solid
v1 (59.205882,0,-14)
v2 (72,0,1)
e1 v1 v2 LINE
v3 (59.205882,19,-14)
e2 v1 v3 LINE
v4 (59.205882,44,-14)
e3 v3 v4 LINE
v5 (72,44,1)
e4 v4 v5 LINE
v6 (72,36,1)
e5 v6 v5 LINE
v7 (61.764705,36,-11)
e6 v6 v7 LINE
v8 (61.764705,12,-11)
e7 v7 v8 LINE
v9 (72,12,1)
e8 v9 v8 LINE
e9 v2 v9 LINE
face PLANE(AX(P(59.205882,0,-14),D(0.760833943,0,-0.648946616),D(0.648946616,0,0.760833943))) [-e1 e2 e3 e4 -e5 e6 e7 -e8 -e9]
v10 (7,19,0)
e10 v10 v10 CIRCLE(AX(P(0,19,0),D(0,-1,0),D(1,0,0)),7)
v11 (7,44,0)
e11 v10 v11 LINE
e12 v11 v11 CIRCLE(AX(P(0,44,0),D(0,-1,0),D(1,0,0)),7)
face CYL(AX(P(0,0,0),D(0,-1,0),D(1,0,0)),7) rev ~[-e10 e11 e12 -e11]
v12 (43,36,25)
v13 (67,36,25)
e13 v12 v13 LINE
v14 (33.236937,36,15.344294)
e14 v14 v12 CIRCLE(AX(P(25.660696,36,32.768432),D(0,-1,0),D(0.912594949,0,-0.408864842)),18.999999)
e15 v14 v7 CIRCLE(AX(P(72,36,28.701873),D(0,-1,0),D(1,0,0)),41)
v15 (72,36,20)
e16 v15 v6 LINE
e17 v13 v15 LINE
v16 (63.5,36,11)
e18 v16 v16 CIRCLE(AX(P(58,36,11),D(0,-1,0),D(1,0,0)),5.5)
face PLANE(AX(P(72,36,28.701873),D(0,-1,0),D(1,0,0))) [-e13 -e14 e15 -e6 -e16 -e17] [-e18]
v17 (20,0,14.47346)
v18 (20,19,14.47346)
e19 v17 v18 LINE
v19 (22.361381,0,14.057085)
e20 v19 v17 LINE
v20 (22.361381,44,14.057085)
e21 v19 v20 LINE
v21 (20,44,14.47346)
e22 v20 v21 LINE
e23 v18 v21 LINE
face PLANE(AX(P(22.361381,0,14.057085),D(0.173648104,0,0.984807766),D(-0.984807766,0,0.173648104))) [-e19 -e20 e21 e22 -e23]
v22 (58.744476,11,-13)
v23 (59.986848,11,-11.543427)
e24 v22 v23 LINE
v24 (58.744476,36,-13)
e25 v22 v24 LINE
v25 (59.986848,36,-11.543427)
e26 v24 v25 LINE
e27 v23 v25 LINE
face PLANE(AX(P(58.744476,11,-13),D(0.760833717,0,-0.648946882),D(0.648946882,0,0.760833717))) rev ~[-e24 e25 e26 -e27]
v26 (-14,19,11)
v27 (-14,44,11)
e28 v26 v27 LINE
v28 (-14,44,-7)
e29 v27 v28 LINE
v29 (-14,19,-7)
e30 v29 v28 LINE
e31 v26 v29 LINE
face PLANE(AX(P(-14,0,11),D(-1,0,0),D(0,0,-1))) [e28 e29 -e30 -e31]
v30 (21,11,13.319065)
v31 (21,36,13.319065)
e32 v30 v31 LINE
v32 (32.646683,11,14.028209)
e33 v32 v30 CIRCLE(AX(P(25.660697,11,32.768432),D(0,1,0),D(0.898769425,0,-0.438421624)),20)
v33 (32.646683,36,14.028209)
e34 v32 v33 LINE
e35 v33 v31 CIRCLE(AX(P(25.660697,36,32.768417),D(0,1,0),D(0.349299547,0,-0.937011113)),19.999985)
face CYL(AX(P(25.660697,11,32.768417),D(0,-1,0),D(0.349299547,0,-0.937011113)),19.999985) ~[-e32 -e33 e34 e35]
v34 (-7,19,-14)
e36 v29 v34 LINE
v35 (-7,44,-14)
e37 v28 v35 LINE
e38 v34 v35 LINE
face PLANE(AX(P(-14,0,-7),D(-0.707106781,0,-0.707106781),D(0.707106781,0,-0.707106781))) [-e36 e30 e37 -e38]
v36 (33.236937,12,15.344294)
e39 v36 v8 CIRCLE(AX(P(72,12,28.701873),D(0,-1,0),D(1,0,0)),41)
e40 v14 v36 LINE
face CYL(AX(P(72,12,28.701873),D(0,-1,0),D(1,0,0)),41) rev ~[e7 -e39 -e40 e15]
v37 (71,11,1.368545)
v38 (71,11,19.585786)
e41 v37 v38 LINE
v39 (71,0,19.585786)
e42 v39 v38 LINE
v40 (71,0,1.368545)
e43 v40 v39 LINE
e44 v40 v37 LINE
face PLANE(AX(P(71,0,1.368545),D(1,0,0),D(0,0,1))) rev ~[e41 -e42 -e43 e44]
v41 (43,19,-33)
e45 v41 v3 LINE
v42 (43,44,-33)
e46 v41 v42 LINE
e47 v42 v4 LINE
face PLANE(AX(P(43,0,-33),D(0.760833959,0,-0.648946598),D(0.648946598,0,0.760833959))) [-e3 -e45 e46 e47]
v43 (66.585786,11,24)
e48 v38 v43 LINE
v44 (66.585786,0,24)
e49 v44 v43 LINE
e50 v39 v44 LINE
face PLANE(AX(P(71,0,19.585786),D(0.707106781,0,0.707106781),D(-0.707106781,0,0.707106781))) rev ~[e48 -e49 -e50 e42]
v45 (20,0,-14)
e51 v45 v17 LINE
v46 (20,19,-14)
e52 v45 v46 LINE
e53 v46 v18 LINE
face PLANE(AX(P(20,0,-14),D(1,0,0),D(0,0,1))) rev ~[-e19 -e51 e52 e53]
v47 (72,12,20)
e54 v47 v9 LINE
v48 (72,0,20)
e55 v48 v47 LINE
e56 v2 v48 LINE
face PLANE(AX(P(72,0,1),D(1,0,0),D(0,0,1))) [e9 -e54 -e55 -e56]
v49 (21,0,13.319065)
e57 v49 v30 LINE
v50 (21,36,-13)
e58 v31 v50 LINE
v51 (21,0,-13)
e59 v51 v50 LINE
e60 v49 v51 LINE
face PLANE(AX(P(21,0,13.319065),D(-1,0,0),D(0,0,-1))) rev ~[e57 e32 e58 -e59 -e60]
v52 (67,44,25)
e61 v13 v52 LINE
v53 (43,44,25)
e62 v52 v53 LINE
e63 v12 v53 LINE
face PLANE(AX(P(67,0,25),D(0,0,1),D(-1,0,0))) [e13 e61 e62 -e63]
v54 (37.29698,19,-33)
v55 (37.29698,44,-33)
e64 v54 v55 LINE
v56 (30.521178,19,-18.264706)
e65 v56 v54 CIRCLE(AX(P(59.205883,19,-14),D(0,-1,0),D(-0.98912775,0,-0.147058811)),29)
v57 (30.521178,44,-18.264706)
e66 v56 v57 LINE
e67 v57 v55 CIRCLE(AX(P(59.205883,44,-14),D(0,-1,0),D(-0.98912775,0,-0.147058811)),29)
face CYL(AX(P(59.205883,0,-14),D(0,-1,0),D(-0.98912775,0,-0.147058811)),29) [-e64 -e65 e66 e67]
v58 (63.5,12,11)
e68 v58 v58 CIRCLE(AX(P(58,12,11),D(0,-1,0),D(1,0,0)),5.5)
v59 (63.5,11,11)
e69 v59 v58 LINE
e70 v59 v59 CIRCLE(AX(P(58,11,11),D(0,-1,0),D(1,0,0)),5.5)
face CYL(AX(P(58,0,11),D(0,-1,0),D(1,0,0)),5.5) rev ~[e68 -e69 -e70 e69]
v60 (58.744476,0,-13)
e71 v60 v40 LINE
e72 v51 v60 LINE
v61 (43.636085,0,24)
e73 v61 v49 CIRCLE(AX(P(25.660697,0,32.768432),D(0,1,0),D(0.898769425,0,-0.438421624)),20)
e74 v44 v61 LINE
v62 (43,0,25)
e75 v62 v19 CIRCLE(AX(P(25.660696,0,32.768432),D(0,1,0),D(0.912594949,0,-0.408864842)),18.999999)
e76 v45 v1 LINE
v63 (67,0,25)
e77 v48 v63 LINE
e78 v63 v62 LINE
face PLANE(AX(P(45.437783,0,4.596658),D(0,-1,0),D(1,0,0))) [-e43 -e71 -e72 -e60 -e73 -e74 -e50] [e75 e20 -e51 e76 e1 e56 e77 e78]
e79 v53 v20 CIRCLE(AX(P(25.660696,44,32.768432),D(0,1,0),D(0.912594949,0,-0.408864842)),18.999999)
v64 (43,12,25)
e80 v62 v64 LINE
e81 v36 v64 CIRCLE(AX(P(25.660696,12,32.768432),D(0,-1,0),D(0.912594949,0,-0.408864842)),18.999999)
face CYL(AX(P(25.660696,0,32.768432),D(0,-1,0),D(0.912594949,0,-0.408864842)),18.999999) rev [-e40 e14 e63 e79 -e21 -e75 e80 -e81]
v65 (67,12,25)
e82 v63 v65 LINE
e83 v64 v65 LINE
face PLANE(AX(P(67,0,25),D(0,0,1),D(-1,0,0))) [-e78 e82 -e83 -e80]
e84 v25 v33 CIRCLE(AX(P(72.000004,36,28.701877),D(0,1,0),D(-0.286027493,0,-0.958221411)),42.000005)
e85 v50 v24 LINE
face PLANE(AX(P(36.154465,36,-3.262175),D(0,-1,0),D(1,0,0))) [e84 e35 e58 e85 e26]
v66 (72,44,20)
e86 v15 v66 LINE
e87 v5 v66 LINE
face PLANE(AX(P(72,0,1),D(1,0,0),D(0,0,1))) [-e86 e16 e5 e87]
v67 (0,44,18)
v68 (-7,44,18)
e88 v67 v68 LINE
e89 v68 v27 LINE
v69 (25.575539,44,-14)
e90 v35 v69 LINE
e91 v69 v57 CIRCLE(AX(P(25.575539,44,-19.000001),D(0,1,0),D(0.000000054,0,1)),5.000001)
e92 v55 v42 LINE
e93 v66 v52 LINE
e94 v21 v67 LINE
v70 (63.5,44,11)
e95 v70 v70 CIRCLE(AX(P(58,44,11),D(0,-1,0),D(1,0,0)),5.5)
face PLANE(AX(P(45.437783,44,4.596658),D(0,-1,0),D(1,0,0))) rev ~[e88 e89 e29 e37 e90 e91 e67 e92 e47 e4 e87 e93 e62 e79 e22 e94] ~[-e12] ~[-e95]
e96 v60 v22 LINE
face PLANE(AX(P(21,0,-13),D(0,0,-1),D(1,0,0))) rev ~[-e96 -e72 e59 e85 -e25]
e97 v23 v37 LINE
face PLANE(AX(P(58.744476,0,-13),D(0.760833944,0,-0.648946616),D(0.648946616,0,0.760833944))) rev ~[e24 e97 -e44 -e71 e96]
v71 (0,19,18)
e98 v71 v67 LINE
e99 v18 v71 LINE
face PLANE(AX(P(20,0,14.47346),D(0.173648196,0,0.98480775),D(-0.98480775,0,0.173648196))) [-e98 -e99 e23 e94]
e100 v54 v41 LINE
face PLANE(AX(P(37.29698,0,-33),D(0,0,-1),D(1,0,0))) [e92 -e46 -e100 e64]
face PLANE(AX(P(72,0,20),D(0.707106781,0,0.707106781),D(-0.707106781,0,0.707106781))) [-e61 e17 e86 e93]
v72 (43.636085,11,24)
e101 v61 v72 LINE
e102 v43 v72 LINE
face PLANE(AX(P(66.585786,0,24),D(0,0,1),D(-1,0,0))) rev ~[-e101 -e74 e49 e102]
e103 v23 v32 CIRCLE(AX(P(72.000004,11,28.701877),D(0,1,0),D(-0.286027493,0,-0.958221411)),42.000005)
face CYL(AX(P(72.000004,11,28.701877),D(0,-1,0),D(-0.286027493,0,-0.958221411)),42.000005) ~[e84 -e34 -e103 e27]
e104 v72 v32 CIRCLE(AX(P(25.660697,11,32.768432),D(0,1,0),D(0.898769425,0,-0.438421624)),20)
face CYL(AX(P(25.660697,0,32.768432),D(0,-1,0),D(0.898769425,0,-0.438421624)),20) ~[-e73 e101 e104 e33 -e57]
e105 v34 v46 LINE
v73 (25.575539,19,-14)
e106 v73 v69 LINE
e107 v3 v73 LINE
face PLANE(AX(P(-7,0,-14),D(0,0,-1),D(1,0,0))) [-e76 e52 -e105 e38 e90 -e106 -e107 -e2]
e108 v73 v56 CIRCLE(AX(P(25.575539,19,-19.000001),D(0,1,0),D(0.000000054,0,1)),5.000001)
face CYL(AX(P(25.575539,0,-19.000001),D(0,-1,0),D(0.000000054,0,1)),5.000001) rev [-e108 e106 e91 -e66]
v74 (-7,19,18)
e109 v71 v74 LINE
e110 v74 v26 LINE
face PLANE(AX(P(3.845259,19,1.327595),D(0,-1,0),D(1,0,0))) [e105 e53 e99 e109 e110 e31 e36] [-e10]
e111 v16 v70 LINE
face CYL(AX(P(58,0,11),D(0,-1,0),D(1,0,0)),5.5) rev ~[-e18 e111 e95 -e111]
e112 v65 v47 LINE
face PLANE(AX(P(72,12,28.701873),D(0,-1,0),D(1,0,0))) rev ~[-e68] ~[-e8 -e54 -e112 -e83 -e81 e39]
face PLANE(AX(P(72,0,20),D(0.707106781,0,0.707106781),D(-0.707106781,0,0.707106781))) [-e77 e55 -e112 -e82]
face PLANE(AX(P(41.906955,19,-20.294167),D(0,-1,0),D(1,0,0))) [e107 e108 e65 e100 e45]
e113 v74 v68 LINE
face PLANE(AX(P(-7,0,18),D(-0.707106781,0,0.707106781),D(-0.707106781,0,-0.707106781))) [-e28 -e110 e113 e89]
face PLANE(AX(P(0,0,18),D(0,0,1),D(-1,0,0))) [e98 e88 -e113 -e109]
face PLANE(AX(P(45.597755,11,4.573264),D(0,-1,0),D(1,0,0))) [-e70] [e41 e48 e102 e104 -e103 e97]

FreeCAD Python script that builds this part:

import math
import FreeCAD as App
import Part
import Sketcher

V = App.Vector
Q = App.Units.Quantity


def add_polygon(sketch, points):
    """Adds a closed chain of lines whose ends are joined by coincident constraints."""
    first, n = sketch.GeometryCount, len(points)
    for a, b in zip(points, points[1:] + points[:1]):
        sketch.addGeometry(Part.LineSegment(App.Vector(*a, 0), App.Vector(*b, 0)), False)
    for i in range(n):
        sketch.addConstraint(Sketcher.Constraint("Coincident", first + i, 2, first + (i + 1) % n, 1))

doc = App.newDocument("Part")
params = doc.addObject("Spreadsheet::Sheet", "Params")
for row, (alias, value) in enumerate([
    ("sketch1_diameter", "14 mm"),
    ("sketch1_diameter2", "11 mm"),
    ("sketch1_radius", "5.000001 mm"),
    ("sketch1_radius2", "29 mm"),
    ("sketch1_radius3", "18.999999 mm"),
    ("pad1_length", "44 mm"),
    ("sketch2_diameter", "14 mm"),
    ("sketch2_radius", "5.000001 mm"),
    ("sketch2_radius2", "29 mm"),
    ("sketch2_width", "27 mm"),
    ("sketch2_width2", "7 mm"),
    ("pocket1_length", "19 mm"),
    ("sketch3_diameter", "82 mm"),
    ("pocket2_length", "24 mm"),
    ("sketch4_radius", "20 mm"),
    ("pocket3_length", "11 mm"),
    ("pocket4_length", "25 mm"),
], start=1):
    params.set(f"A{row}", alias)
    params.set(f"B{row}", "=" + value)
    params.setAlias(f"B{row}", alias)

body = doc.addObject("PartDesign::Body", "Body")

# Sketch on XZ plane
sketch1 = body.newObject("Sketcher::SketchObject", "Sketch")
sketch1.AttachmentSupport = (doc.getObject("XZ_Plane"), [""])
sketch1.MapMode = "FlatFace"
sketch1.addGeometry([
    Part.LineSegment(V(22.4, 14.1, 0), V(20, 14.5, 0)),  # 0
    Part.LineSegment(V(20, 14.5, 0), V(0, 18, 0)),  # 1
    Part.LineSegment(V(0, 18, 0), V(-7, 18, 0)),  # 2
    Part.LineSegment(V(-7, 18, 0), V(-14, 11, 0)),  # 3
    Part.LineSegment(V(-14, 11, 0), V(-14, -7, 0)),  # 4
    Part.LineSegment(V(-14, -7, 0), V(-7, -14, 0)),  # 5
    Part.LineSegment(V(-7, -14, 0), V(25.6, -14, 0)),  # 6
    Part.ArcOfCircle(Part.Circle(V(25.6, -19, 0), V(0, 0, 1), 5), math.radians(8), math.radians(90)),  # 7
    Part.ArcOfCircle(Part.Circle(V(59.2, -14, 0), V(0, 0, 1), 29), math.radians(-172), math.radians(-139)),  # 8
    Part.LineSegment(V(37.3, -33, 0), V(43, -33, 0)),  # 9
    Part.LineSegment(V(43, -33, 0), V(59.2, -14, 0)),  # 10
    Part.LineSegment(V(59.2, -14, 0), V(72, 1, 0)),  # 11
    Part.LineSegment(V(72, 1, 0), V(72, 20, 0)),  # 12
    Part.LineSegment(V(72, 20, 0), V(67, 25, 0)),  # 13
    Part.LineSegment(V(67, 25, 0), V(43, 25, 0)),  # 14
    Part.ArcOfCircle(Part.Circle(V(25.7, 32.8, 0), V(0, 0, 1), 19), math.radians(-100), math.radians(-24)),  # 15
    Part.Circle(V(0, 0, 0), V(0, 0, 1), 7),  # 16
    Part.Circle(V(58, 11, 0), V(0, 0, 1), 5.5),  # 17
], False)
sketch1.addConstraint([
    Sketcher.Constraint("Coincident", 0, 2, 1, 1),
    Sketcher.Constraint("Coincident", 1, 2, 2, 1),
    Sketcher.Constraint("Coincident", 2, 2, 3, 1),
    Sketcher.Constraint("Coincident", 3, 2, 4, 1),
    Sketcher.Constraint("Coincident", 4, 2, 5, 1),
    Sketcher.Constraint("Coincident", 5, 2, 6, 1),
    Sketcher.Constraint("Tangent", 6, 2, 7, 2),
    Sketcher.Constraint("Tangent", 7, 1, 8, 1),
    Sketcher.Constraint("Coincident", 8, 2, 9, 1),
    Sketcher.Constraint("Coincident", 9, 2, 10, 1),
    Sketcher.Constraint("Coincident", 10, 2, 11, 1),
    Sketcher.Constraint("Coincident", 11, 2, 12, 1),
    Sketcher.Constraint("Coincident", 12, 2, 13, 1),
    Sketcher.Constraint("Coincident", 13, 2, 14, 1),
    Sketcher.Constraint("Coincident", 14, 2, 15, 2),
    Sketcher.Constraint("Tangent", 15, 1, 0, 1),
    Sketcher.Constraint("Horizontal", 2),
    Sketcher.Constraint("Vertical", 4),
    Sketcher.Constraint("Horizontal", 6),
    Sketcher.Constraint("Horizontal", 9),
    Sketcher.Constraint("Vertical", 12),
    Sketcher.Constraint("Horizontal", 14),
    Sketcher.Constraint("Coincident", 16, 3, -1, 1),
    Sketcher.Constraint("Coincident", 10, 2, 8, 3),
    Sketcher.Constraint("PointOnObject", 1, 2, -2),
    Sketcher.Constraint("Parallel", 0, 1),
    Sketcher.Constraint("Perpendicular", 3, 5),
    Sketcher.Constraint("Parallel", 10, 11),
    Sketcher.Constraint("Parallel", 5, 13),
    Sketcher.Constraint("Horizontal", 17, 3, 3, 2),
    Sketcher.Constraint("Horizontal", 8, 3, 5, 2),
    Sketcher.Constraint("Vertical", 2, 2, 5, 2),
    Sketcher.Constraint("Vertical", 9, 2, 14, 2),
    Sketcher.Constraint("Equal", 3, 5),
    Sketcher.Constraint("Diameter", 16, Q("14 mm")),
    Sketcher.Constraint("Diameter", 17, Q("11 mm")),
    Sketcher.Constraint("Radius", 7, Q("5.000001 mm")),
    Sketcher.Constraint("Radius", 8, Q("29 mm")),
    Sketcher.Constraint("Radius", 15, Q("18.999999 mm")),
    Sketcher.Constraint("DistanceX", 2, 2, 2, 1, Q("7 mm")),
    Sketcher.Constraint("DistanceX", 14, 2, 14, 1, Q("24 mm")),
    Sketcher.Constraint("DistanceY", 4, 2, 4, 1, Q("18 mm")),
    Sketcher.Constraint("DistanceY", 12, 1, 12, 2, Q("19 mm")),
    Sketcher.Constraint("Angle", 0, Q("170.000004 deg")),
    Sketcher.Constraint("DistanceY", 7, 3, -1, 1, Q("19.000001 mm")),
    Sketcher.Constraint("DistanceX", -1, 1, 17, 3, Q("58 mm")),
    Sketcher.Constraint("DistanceY", -1, 1, 17, 3, Q("11 mm")),
    Sketcher.Constraint("DistanceX", -1, 1, 0, 2, Q("20 mm")),
    Sketcher.Constraint("DistanceY", 8, 2, -1, 1, Q("33 mm")),
    Sketcher.Constraint("DistanceX", -1, 1, 9, 2, Q("43 mm")),
    Sketcher.Constraint("DistanceX", -1, 1, 11, 2, Q("72 mm")),
    Sketcher.Constraint("DistanceY", -1, 1, 11, 2, Q("1 mm")),
])
sketch1.setExpression("Constraints[34]", "Params.sketch1_diameter")
sketch1.setExpression("Constraints[35]", "Params.sketch1_diameter2")
sketch1.setExpression("Constraints[36]", "Params.sketch1_radius")
sketch1.setExpression("Constraints[37]", "Params.sketch1_radius2")
sketch1.setExpression("Constraints[38]", "Params.sketch1_radius3")
pad1 = body.newObject("PartDesign::Pad", "Pad")
pad1.Profile = sketch1
pad1.setExpression("Length", "Params.pad1_length")
pad1.Reversed = True

# Sketch on XZ plane
sketch2 = body.newObject("Sketcher::SketchObject", "Sketch001")
sketch2.AttachmentSupport = (doc.getObject("XZ_Plane"), [""])
sketch2.MapMode = "FlatFace"
add_polygon(sketch2, [(-14, 11), (-14, -7), (-7, -14), (20, -14), (20, 14), (0, 18), (-7, 18)])  # lines 0-6
sketch2.addGeometry(Part.Circle(V(0, 0, 0), V(0, 0, 1), 7), False)  # 7
sketch2.addGeometry(Part.LineSegment(V(59, -14, 0), V(26, -14, 0)), False)  # 8
sketch2.addGeometry(Part.ArcOfCircle(Part.Circle(V(26, -19, 0), V(0, 0, 1), 5), math.radians(8), math.radians(90)), False)  # 9
sketch2.addGeometry(Part.ArcOfCircle(Part.Circle(V(59, -14, 0), V(0, 0, 1), 29), math.radians(-172), math.radians(-139)), False)  # 10
sketch2.addGeometry(Part.LineSegment(V(37, -33, 0), V(43, -33, 0)), False)  # 11
sketch2.addGeometry(Part.LineSegment(V(43, -33, 0), V(59, -14, 0)), False)  # 12
sketch2.addConstraint([
    Sketcher.Constraint("Tangent", 8, 2, 9, 2),
    Sketcher.Constraint("Tangent", 9, 1, 10, 1),
    Sketcher.Constraint("Coincident", 10, 2, 11, 1),
    Sketcher.Constraint("Coincident", 11, 2, 12, 1),
    Sketcher.Constraint("Coincident", 12, 2, 8, 1),
    Sketcher.Constraint("Vertical", 0),
    Sketcher.Constraint("Horizontal", 2),
    Sketcher.Constraint("Vertical", 3),
    Sketcher.Constraint("Horizontal", 5),
    Sketcher.Constraint("Horizontal", 8),
    Sketcher.Constraint("Horizontal", 11),
    Sketcher.Constraint("Coincident", 7, 3, -1, 1),
    Sketcher.Constraint("Coincident", 12, 2, 10, 3),
    Sketcher.Constraint("PointOnObject", 4, 2, -2),
    Sketcher.Constraint("Perpendicular", 1, 6),
    Sketcher.Constraint("Horizontal", 10, 3, 1, 2),
    Sketcher.Constraint("Vertical", 1, 2, 5, 2),
    Sketcher.Constraint("Equal", 1, 6),
    Sketcher.Constraint("Diameter", 7, Q("14 mm")),
    Sketcher.Constraint("Radius", 9, Q("5.000001 mm")),
    Sketcher.Constraint("Radius", 10, Q("29 mm")),
    Sketcher.Constraint("DistanceX", 2, 1, 2, 2, Q("27 mm")),
    Sketcher.Constraint("DistanceX", 5, 2, 5, 1, Q("7 mm")),
    Sketcher.Constraint("DistanceY", 0, 2, 0, 1, Q("18 mm")),
    Sketcher.Constraint("Angle", 4, Q("169.999999 deg")),
    Sketcher.Constraint("DistanceY", 9, 3, -1, 1, Q("19.000001 mm")),
    Sketcher.Constraint("DistanceX", 0, 2, -1, 1, Q("14 mm")),
    Sketcher.Constraint("DistanceY", 10, 2, -1, 1, Q("33 mm")),
    Sketcher.Constraint("DistanceX", -1, 1, 11, 2, Q("43 mm")),
    Sketcher.Constraint("DistanceX", 11, 1, 11, 2, Q("5.70302 mm")),
])
sketch2.setExpression("Constraints[25]", "Params.sketch2_diameter")
sketch2.setExpression("Constraints[26]", "Params.sketch2_radius")
sketch2.setExpression("Constraints[27]", "Params.sketch2_radius2")
sketch2.setExpression("Constraints[28]", "Params.sketch2_width")
sketch2.setExpression("Constraints[29]", "Params.sketch2_width2")
pocket1 = body.newObject("PartDesign::Pocket", "Pocket")
pocket1.Profile = sketch2
pocket1.setExpression("Length", "Params.pocket1_length")

# Sketch on XZ plane
sketch3 = body.newObject("Sketcher::SketchObject", "Sketch002")
sketch3.AttachmentSupport = (doc.getObject("XZ_Plane"), [""])
sketch3.MapMode = "FlatFace"
sketch3.AttachmentOffset = App.Placement(V(0, 0, -12), App.Rotation())
sketch3.addGeometry(Part.Circle(V(72, 29, 0), V(0, 0, 1), 41), False)
sketch3.addConstraint([
    Sketcher.Constraint("Diameter", 0, Q("82 mm")),
    Sketcher.Constraint("DistanceX", -1, 1, 0, 3, Q("72 mm")),
    Sketcher.Constraint("DistanceY", -1, 1, 0, 3, Q("28.701873 mm")),
])
sketch3.setExpression("Constraints[0]", "Params.sketch3_diameter")
pocket2 = body.newObject("PartDesign::Pocket", "Pocket001")
pocket2.Profile = sketch3
pocket2.setExpression("Length", "Params.pocket2_length")

# Sketch on XZ plane
sketch4 = body.newObject("Sketcher::SketchObject", "Sketch003")
sketch4.AttachmentSupport = (doc.getObject("XZ_Plane"), [""])
sketch4.MapMode = "FlatFace"
sketch4.addGeometry([
    Part.ArcOfCircle(Part.Circle(V(26, 33, 0), V(0, 0, 1), 20), math.radians(-103), math.radians(-26)),  # 0
    Part.LineSegment(V(21, 13, 0), V(21, -13, 0)),  # 1
    Part.LineSegment(V(21, -13, 0), V(59, -13, 0)),  # 2
    Part.LineSegment(V(59, -13, 0), V(71, 1, 0)),  # 3
    Part.LineSegment(V(71, 1, 0), V(71, 20, 0)),  # 4
    Part.LineSegment(V(71, 20, 0), V(67, 24, 0)),  # 5
    Part.LineSegment(V(67, 24, 0), V(44, 24, 0)),  # 6
], False)
sketch4.addConstraint([
    Sketcher.Constraint("Coincident", 0, 1, 1, 1),
    Sketcher.Constraint("Coincident", 1, 2, 2, 1),
    Sketcher.Constraint("Coincident", 2, 2, 3, 1),
    Sketcher.Constraint("Coincident", 3, 2, 4, 1),
    Sketcher.Constraint("Coincident", 4, 2, 5, 1),
    Sketcher.Constraint("Coincident", 5, 2, 6, 1),
    Sketcher.Constraint("Coincident", 6, 2, 0, 2),
    Sketcher.Constraint("Vertical", 1),
    Sketcher.Constraint("Horizontal", 2),
    Sketcher.Constraint("Vertical", 4),
    Sketcher.Constraint("Horizontal", 6),
    Sketcher.Constraint("Radius", 0, Q("20 mm")),
    Sketcher.Constraint("Angle", 5, Q("135 deg")),
    Sketcher.Constraint("DistanceX", -1, 1, 0, 1, Q("21 mm")),
    Sketcher.Constraint("DistanceY", 1, 2, -1, 1, Q("13 mm")),
    Sketcher.Constraint("DistanceX", -1, 1, 3, 2, Q("71 mm")),
    Sketcher.Constraint("DistanceY", -1, 1, 5, 2, Q("24 mm")),
    Sketcher.Constraint("DistanceX", 6, 2, 6, 1, Q("22.949701 mm")),
    Sketcher.Constraint("DistanceY", 4, 1, 4, 2, Q("18.217241 mm")),
    Sketcher.Constraint("Distance", 5, Q("6.242641 mm")),
    Sketcher.Constraint("DistanceX", 2, 1, 2, 2, Q("37.744476 mm")),
    Sketcher.Constraint("DistanceY", 1, 2, 1, 1, Q("26.319065 mm")),
])
sketch4.setExpression("Constraints[11]", "Params.sketch4_radius")
pocket3 = body.newObject("PartDesign::Pocket", "Pocket002")
pocket3.Profile = sketch4
pocket3.setExpression("Length", "Params.pocket3_length")

# Sketch on XZ plane
sketch5 = body.newObject("Sketcher::SketchObject", "Sketch004")
sketch5.AttachmentSupport = (doc.getObject("XZ_Plane"), [""])
sketch5.MapMode = "FlatFace"
sketch5.AttachmentOffset = App.Placement(V(0, 0, -11), App.Rotation())
sketch5.addGeometry([
    Part.LineSegment(V(58.7, -13, 0), V(60, -11.5, 0)),  # 0
    Part.ArcOfCircle(Part.Circle(V(72, 28.7, 0), V(0, 0, 1), 42), math.radians(-160), math.radians(-107)),  # 1
    Part.ArcOfCircle(Part.Circle(V(25.7, 32.8, 0), V(0, 0, 1), 20), math.radians(-103), math.radians(-70)),  # 2
    Part.LineSegment(V(21, 13.3, 0), V(21, -13, 0)),  # 3
    Part.LineSegment(V(21, -13, 0), V(58.7, -13, 0)),  # 4
], False)
sketch5.addConstraint([
    Sketcher.Constraint("Coincident", 0, 2, 1, 2),
    Sketcher.Constraint("Coincident", 1, 1, 2, 2),
    Sketcher.Constraint("Coincident", 2, 1, 3, 1),
    Sketcher.Constraint("Coincident", 3, 2, 4, 1),
    Sketcher.Constraint("Coincident", 4, 2, 0, 1),
    Sketcher.Constraint("Vertical", 3),
    Sketcher.Constraint("Horizontal", 4),
    Sketcher.Constraint("DistanceX", -1, 1, 2, 1, Q("21 mm")),
    Sketcher.Constraint("DistanceY", 3, 2, -1, 1, Q("13 mm")),
    Sketcher.Constraint("Radius", 1, Q("42.000005 mm")),
    Sketcher.Constraint("Radius", 2, Q("19.999985 mm")),
    Sketcher.Constraint("DistanceX", 4, 1, 4, 2, Q("37.744476 mm")),
    Sketcher.Constraint("DistanceY", 3, 2, 3, 1, Q("26.319065 mm")),
    Sketcher.Constraint("DistanceX", -1, 1, 0, 2, Q("59.986848 mm")),
    Sketcher.Constraint("DistanceY", -1, 1, 1, 1, Q("14.028209 mm")),
    Sketcher.Constraint("DistanceY", 1, 3, 2, 3, Q("4.06654 mm")),
    Sketcher.Constraint("DistanceX", 2, 3, 0, 2, Q("34.326151 mm")),
])
pocket4 = body.newObject("PartDesign::Pocket", "Pocket003")
pocket4.Profile = sketch5
pocket4.setExpression("Length", "Params.pocket4_length")

doc.recompute()
